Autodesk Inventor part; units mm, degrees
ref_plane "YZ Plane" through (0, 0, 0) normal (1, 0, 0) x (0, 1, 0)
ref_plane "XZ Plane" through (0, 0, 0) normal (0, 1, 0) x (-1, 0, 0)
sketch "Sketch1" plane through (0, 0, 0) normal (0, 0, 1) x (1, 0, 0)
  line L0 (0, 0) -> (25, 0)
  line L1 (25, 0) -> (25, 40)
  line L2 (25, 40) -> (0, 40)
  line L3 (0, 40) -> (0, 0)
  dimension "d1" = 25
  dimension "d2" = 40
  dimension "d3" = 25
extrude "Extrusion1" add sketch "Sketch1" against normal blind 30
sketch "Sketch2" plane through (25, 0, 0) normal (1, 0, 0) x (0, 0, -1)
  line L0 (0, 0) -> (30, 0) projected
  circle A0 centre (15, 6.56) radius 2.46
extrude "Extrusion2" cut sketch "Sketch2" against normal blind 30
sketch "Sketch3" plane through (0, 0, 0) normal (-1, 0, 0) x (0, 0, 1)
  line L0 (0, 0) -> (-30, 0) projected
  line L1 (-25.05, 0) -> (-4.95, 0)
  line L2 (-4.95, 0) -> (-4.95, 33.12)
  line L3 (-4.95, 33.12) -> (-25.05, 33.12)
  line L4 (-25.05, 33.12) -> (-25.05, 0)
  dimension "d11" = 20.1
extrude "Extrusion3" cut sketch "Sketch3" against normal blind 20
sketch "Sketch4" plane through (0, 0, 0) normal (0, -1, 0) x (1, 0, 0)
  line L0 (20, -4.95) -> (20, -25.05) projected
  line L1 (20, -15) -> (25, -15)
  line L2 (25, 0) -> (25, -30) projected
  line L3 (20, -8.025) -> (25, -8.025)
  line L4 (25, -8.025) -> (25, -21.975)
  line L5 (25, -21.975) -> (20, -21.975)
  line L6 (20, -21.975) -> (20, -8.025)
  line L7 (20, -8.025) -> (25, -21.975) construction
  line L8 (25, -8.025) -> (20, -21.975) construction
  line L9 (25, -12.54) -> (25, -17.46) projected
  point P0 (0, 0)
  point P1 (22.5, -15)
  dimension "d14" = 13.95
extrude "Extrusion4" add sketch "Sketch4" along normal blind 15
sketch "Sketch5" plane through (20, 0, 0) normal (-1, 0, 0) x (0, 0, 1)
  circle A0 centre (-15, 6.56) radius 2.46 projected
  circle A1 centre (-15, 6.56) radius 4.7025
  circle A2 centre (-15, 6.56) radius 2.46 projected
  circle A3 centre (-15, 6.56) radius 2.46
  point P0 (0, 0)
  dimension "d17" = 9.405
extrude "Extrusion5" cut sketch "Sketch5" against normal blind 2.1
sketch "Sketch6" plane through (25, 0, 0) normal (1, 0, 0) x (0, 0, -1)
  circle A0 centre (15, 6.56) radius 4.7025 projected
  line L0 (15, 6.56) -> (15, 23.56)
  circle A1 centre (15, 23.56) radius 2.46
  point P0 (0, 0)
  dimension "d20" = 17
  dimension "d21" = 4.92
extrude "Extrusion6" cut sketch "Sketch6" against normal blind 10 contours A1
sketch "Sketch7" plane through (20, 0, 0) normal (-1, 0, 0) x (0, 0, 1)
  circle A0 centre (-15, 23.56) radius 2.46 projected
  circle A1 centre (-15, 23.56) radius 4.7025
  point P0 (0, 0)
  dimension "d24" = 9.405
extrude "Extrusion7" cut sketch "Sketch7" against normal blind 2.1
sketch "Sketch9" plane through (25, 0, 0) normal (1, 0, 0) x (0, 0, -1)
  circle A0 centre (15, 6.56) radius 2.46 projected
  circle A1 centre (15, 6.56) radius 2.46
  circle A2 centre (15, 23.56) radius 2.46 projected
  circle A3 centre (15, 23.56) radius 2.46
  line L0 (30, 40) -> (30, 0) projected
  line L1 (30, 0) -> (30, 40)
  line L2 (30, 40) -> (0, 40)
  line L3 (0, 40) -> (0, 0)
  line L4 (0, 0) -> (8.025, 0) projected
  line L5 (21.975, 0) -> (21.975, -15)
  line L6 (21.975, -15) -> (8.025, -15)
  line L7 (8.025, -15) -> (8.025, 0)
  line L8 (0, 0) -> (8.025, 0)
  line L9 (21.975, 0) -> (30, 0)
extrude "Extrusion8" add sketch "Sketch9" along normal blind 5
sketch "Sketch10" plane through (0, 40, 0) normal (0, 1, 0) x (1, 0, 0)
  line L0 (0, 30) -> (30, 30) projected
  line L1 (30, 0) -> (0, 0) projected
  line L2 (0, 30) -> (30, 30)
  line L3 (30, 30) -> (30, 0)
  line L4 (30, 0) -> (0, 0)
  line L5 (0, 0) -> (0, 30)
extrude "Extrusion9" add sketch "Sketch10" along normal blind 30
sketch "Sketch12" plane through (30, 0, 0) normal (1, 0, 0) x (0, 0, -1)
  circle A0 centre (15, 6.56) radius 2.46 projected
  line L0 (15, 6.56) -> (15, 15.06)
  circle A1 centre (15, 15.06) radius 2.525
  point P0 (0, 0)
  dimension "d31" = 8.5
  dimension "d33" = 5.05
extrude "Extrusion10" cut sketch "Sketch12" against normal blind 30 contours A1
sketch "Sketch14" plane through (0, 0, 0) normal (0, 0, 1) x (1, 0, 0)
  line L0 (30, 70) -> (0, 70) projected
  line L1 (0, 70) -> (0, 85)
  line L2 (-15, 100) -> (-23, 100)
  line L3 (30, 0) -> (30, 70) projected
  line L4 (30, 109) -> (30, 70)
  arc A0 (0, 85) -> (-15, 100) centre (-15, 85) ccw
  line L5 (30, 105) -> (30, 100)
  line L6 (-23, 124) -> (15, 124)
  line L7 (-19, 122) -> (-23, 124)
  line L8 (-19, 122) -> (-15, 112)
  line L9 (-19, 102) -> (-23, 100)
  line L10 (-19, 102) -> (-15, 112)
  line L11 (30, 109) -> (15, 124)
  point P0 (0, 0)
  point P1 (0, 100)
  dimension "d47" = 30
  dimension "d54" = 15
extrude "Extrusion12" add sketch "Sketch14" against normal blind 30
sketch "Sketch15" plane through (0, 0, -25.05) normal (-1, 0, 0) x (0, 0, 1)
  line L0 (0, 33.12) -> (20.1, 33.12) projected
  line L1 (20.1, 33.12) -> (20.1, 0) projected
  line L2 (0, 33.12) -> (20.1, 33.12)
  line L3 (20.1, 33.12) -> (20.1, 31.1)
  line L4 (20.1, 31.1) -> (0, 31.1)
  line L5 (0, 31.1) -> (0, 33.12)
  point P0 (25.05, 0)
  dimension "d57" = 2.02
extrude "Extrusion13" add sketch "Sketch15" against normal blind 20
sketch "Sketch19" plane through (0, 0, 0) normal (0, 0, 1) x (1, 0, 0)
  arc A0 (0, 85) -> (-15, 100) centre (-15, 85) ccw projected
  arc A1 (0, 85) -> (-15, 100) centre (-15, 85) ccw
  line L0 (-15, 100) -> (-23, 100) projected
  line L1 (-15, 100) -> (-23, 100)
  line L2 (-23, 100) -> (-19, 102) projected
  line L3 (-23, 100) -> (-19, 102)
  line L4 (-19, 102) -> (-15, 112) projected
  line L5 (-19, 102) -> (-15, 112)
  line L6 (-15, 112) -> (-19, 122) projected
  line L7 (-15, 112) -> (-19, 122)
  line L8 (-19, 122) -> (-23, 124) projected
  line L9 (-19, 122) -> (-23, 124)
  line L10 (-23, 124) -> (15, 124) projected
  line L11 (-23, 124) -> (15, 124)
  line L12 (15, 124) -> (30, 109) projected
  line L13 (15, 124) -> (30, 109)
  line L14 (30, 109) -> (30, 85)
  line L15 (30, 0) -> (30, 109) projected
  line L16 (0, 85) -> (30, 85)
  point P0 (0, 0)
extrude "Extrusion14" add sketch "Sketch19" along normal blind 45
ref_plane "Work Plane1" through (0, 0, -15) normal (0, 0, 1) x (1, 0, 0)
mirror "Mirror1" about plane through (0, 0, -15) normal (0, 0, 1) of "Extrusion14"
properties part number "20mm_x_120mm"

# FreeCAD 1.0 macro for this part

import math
import FreeCAD as App
import Part
import Sketcher
from FreeCAD import Vector
Q = App.Units.Quantity


def add_polygon(sketch, points):
    """Adds a closed chain of lines whose ends are joined by coincident constraints."""
    first, n = sketch.GeometryCount, len(points)
    for a, b in zip(points, points[1:] + points[:1]):
        sketch.addGeometry(Part.LineSegment(App.Vector(*a, 0), App.Vector(*b, 0)), False)
    for i in range(n):
        sketch.addConstraint(Sketcher.Constraint("Coincident", first + i, 2, first + (i + 1) % n, 1))

doc = App.newDocument("Part")
body = doc.addObject("PartDesign::Body", "Body")

# Sketch on XY plane
sketch1 = doc.addObject("Sketcher::SketchObject", "Sketch")
body.addObject(sketch1)
sketch1.AttachmentSupport = (doc.XY_Plane, [""])
sketch1.MapMode = "FlatFace"
add_polygon(sketch1, [(0, 40), (0, 0), (25, 0), (25, 40)])  # lines 0-3
sketch1.addConstraint([
    Sketcher.Constraint("Vertical", 0),
    Sketcher.Constraint("Horizontal", 1),
    Sketcher.Constraint("Vertical", 2),
    Sketcher.Constraint("Horizontal", 3),
    Sketcher.Constraint("Coincident", 0, 2, -1, 1),
    Sketcher.Constraint("DistanceX", 1, 1, 1, 2, 25.0),
    Sketcher.Constraint("DistanceY", 0, 2, 0, 1, 40.0),
])
pad1 = doc.addObject("PartDesign::Pad", "Pad")
body.addObject(pad1)
pad1.Profile = sketch1
pad1.Length = 30
pad1.Reversed = True

# Sketch on YZ plane
sketch2 = doc.addObject("Sketcher::SketchObject", "Sketch001")
body.addObject(sketch2)
sketch2.AttachmentSupport = (doc.YZ_Plane, [""])
sketch2.MapMode = "FlatFace"
sketch2.AttachmentOffset = App.Placement(Vector(0, 0, 25), App.Rotation())
sketch2.addGeometry(Part.Circle(Vector(6.56, -15, 0), Vector(0, 0, 1), 2.46), False)
sketch2.addConstraint([
    Sketcher.Constraint("Diameter", 0, 4.92),
    Sketcher.Constraint("DistanceY", 0, 3, -1, 1, 15.0),
    Sketcher.Constraint("DistanceX", -1, 1, 0, 3, 6.56),
])
pocket1 = doc.addObject("PartDesign::Pocket", "Pocket")
body.addObject(pocket1)
pocket1.Profile = sketch2
pocket1.Length = 30

# Sketch on YZ plane
sketch3 = doc.addObject("Sketcher::SketchObject", "Sketch002")
body.addObject(sketch3)
sketch3.AttachmentSupport = (doc.YZ_Plane, [""])
sketch3.MapMode = "FlatFace"
add_polygon(sketch3, [(0, -25.05), (0, -4.95), (33.12, -4.95), (33.12, -25.05)])  # lines 0-3
sketch3.addConstraint([
    Sketcher.Constraint("Vertical", 0),
    Sketcher.Constraint("Horizontal", 1),
    Sketcher.Constraint("Vertical", 2),
    Sketcher.Constraint("Horizontal", 3),
    Sketcher.Constraint("PointOnObject", 0, 2, -2),
    Sketcher.Constraint("DistanceY", 0, 1, 0, 2, 20.1),
    Sketcher.Constraint("DistanceX", 1, 1, 1, 2, 33.12),
    Sketcher.Constraint("DistanceY", 0, 2, -1, 1, 4.95),
])
pocket2 = doc.addObject("PartDesign::Pocket", "Pocket001")
body.addObject(pocket2)
pocket2.Profile = sketch3
pocket2.Length = 20
pocket2.Reversed = True

# Sketch on XZ plane
sketch4 = doc.addObject("Sketcher::SketchObject", "Sketch003")
body.addObject(sketch4)
sketch4.AttachmentSupport = (doc.XZ_Plane, [""])
sketch4.MapMode = "FlatFace"
add_polygon(sketch4, [(25, -8.025), (20, -8.025), (20, -21.975), (25, -21.975)])  # lines 0-3
sketch4.addConstraint([
    Sketcher.Constraint("Horizontal", 0),
    Sketcher.Constraint("Vertical", 1),
    Sketcher.Constraint("Horizontal", 2),
    Sketcher.Constraint("Vertical", 3),
    Sketcher.Constraint("DistanceY", 1, 2, 1, 1, 13.95),
    Sketcher.Constraint("DistanceX", 0, 2, 0, 1, 5.0),
    Sketcher.Constraint("DistanceX", -1, 1, 0, 2, 20.0),
    Sketcher.Constraint("DistanceY", 0, 2, -1, 1, 8.025),
])
pad2 = doc.addObject("PartDesign::Pad", "Pad001")
body.addObject(pad2)
pad2.Profile = sketch4
pad2.Length = 15

# Sketch on YZ plane
sketch5 = doc.addObject("Sketcher::SketchObject", "Sketch004")
body.addObject(sketch5)
sketch5.AttachmentSupport = (doc.YZ_Plane, [""])
sketch5.MapMode = "FlatFace"
sketch5.AttachmentOffset = App.Placement(Vector(0, 0, 20), App.Rotation())
sketch5.addGeometry([
    Part.Circle(Vector(6.56, -15, 0), Vector(0, 0, 1), 4.7025),
    Part.Circle(Vector(6.56, -15, 0), Vector(0, 0, 1), 2.46),
], False)
sketch5.addConstraint([
    Sketcher.Constraint("Coincident", 1, 3, 0, 3),
    Sketcher.Constraint("Diameter", 0, 9.405),
    Sketcher.Constraint("Diameter", 1, 4.92),
    Sketcher.Constraint("DistanceY", 0, 3, -1, 1, 15.0),
    Sketcher.Constraint("DistanceX", -1, 1, 0, 3, 6.56),
])
pocket3 = doc.addObject("PartDesign::Pocket", "Pocket002")
body.addObject(pocket3)
pocket3.Profile = sketch5
pocket3.Length = 2.1
pocket3.Reversed = True

# Sketch on YZ plane
sketch6 = doc.addObject("Sketcher::SketchObject", "Sketch005")
body.addObject(sketch6)
sketch6.AttachmentSupport = (doc.YZ_Plane, [""])
sketch6.MapMode = "FlatFace"
sketch6.AttachmentOffset = App.Placement(Vector(0, 0, 25), App.Rotation())
sketch6.addGeometry(Part.Circle(Vector(23.56, -15, 0), Vector(0, 0, 1), 2.46), False)
sketch6.addConstraint([
    Sketcher.Constraint("Diameter", 0, 4.92),
    Sketcher.Constraint("DistanceY", 0, 3, -1, 1, 15.0),
    Sketcher.Constraint("DistanceX", -1, 1, 0, 3, 23.56),
])
pocket4 = doc.addObject("PartDesign::Pocket", "Pocket003")
body.addObject(pocket4)
pocket4.Profile = sketch6
pocket4.Length = 10

# Sketch on YZ plane
sketch7 = doc.addObject("Sketcher::SketchObject", "Sketch006")
body.addObject(sketch7)
sketch7.AttachmentSupport = (doc.YZ_Plane, [""])
sketch7.MapMode = "FlatFace"
sketch7.AttachmentOffset = App.Placement(Vector(0, 0, 20), App.Rotation())
sketch7.addGeometry([
    Part.Circle(Vector(23.56, -15, 0), Vector(0, 0, 1), 4.7025),
    Part.Circle(Vector(23.56, -15, 0), Vector(0, 0, 1), 2.46),
], False)
sketch7.addConstraint([
    Sketcher.Constraint("Coincident", 1, 3, 0, 3),
    Sketcher.Constraint("Diameter", 0, 9.405),
    Sketcher.Constraint("Diameter", 1, 4.92),
    Sketcher.Constraint("DistanceY", 0, 3, -1, 1, 15.0),
    Sketcher.Constraint("DistanceX", -1, 1, 0, 3, 23.56),
])
pocket5 = doc.addObject("PartDesign::Pocket", "Pocket004")
body.addObject(pocket5)
pocket5.Profile = sketch7
pocket5.Length = 2.1
pocket5.Reversed = True

# Sketch on YZ plane
sketch8 = doc.addObject("Sketcher::SketchObject", "Sketch007")
body.addObject(sketch8)
sketch8.AttachmentSupport = (doc.YZ_Plane, [""])
sketch8.MapMode = "FlatFace"
sketch8.AttachmentOffset = App.Placement(Vector(0, 0, 25), App.Rotation())
add_polygon(sketch8, [(0, -30), (40, -30), (40, 0), (0, 0), (0, -8.025), (-15, -8.025), (-15, -21.975), (0, -21.975)])  # lines 0-7
sketch8.addGeometry(Part.Circle(Vector(6.56, -15, 0), Vector(0, 0, 1), 2.46), False)  # 8
sketch8.addGeometry(Part.Circle(Vector(23.56, -15, 0), Vector(0, 0, 1), 2.46), False)  # 9
sketch8.addConstraint([
    Sketcher.Constraint("Horizontal", 0),
    Sketcher.Constraint("Vertical", 1),
    Sketcher.Constraint("Horizontal", 2),
    Sketcher.Constraint("Vertical", 3),
    Sketcher.Constraint("Horizontal", 4),
    Sketcher.Constraint("Vertical", 5),
    Sketcher.Constraint("Horizontal", 6),
    Sketcher.Constraint("Vertical", 7),
    Sketcher.Constraint("Coincident", 2, 2, -1, 1),
    Sketcher.Constraint("Equal", 8, 9),
    Sketcher.Constraint("PointOnObject", 6, 2, -2),
    Sketcher.Constraint("Horizontal", 8, 3, 9, 3),
    Sketcher.Constraint("Equal", 3, 7),
    Sketcher.Constraint("Diameter", 8, 4.92),
    Sketcher.Constraint("DistanceX", 0, 1, 0, 2, 40.0),
    Sketcher.Constraint("DistanceX", 4, 2, 4, 1, 15.0),
    Sketcher.Constraint("DistanceY", 1, 1, 1, 2, 30.0),
    Sketcher.Constraint("DistanceY", 8, 3, -1, 1, 15.0),
    Sketcher.Constraint("DistanceX", 8, 3, 9, 3, 17.0),
    Sketcher.Constraint("DistanceY", 5, 2, 5, 1, 13.95),
    Sketcher.Constraint("DistanceX", -1, 1, 8, 3, 6.56),
])
pad3 = doc.addObject("PartDesign::Pad", "Pad002")
body.addObject(pad3)
pad3.Profile = sketch8
pad3.Length = 5

# Sketch on XZ plane
sketch9 = doc.addObject("Sketcher::SketchObject", "Sketch008")
body.addObject(sketch9)
sketch9.AttachmentSupport = (doc.XZ_Plane, [""])
sketch9.MapMode = "FlatFace"
sketch9.AttachmentOffset = App.Placement(Vector(0, 0, -40), App.Rotation())
add_polygon(sketch9, [(30, -30), (0, -30), (0, 0), (30, 0)])  # lines 0-3
sketch9.addConstraint([
    Sketcher.Constraint("Horizontal", 0),
    Sketcher.Constraint("Vertical", 1),
    Sketcher.Constraint("Horizontal", 2),
    Sketcher.Constraint("Vertical", 3),
    Sketcher.Constraint("Coincident", 1, 2, -1, 1),
    Sketcher.Constraint("Equal", 2, 1),
    Sketcher.Constraint("DistanceX", 0, 2, 0, 1, 30.0),
])
pad4 = doc.addObject("PartDesign::Pad", "Pad003")
body.addObject(pad4)
pad4.Profile = sketch9
pad4.Length = 30
pad4.Reversed = True

# Sketch on YZ plane
sketch10 = doc.addObject("Sketcher::SketchObject", "Sketch009")
body.addObject(sketch10)
sketch10.AttachmentSupport = (doc.YZ_Plane, [""])
sketch10.MapMode = "FlatFace"
sketch10.AttachmentOffset = App.Placement(Vector(0, 0, 30), App.Rotation())
sketch10.addGeometry(Part.Circle(Vector(15.06, -15, 0), Vector(0, 0, 1), 2.525), False)
sketch10.addConstraint([
    Sketcher.Constraint("Diameter", 0, 5.05),
    Sketcher.Constraint("DistanceY", 0, 3, -1, 1, 15.0),
    Sketcher.Constraint("DistanceX", -1, 1, 0, 3, 15.06),
])
pocket6 = doc.addObject("PartDesign::Pocket", "Pocket005")
body.addObject(pocket6)
pocket6.Profile = sketch10
pocket6.Length = 30

# Sketch on XY plane
sketch11 = doc.addObject("Sketcher::SketchObject", "Sketch010")
body.addObject(sketch11)
sketch11.AttachmentSupport = (doc.XY_Plane, [""])
sketch11.MapMode = "FlatFace"
sketch11.addGeometry([
    Part.LineSegment(Vector(0, 70, 0), Vector(30, 70, 0)),  # 0
    Part.LineSegment(Vector(30, 70, 0), Vector(30, 109, 0)),  # 1
    Part.LineSegment(Vector(30, 109, 0), Vector(15, 124, 0)),  # 2
    Part.LineSegment(Vector(15, 124, 0), Vector(-23, 124, 0)),  # 3
    Part.LineSegment(Vector(-23, 124, 0), Vector(-19, 122, 0)),  # 4
    Part.LineSegment(Vector(-19, 122, 0), Vector(-15, 112, 0)),  # 5
    Part.LineSegment(Vector(-15, 112, 0), Vector(-19, 102, 0)),  # 6
    Part.LineSegment(Vector(-19, 102, 0), Vector(-23, 100, 0)),  # 7
    Part.LineSegment(Vector(-23, 100, 0), Vector(-15, 100, 0)),  # 8
    Part.ArcOfCircle(Part.Circle(Vector(-15, 85, 0), Vector(0, 0, 1), 15), math.radians(0), math.radians(90)),  # 9
    Part.LineSegment(Vector(0, 85, 0), Vector(0, 70, 0)),  # 10
], False)
sketch11.addConstraint([
    Sketcher.Constraint("Coincident", 0, 2, 1, 1),
    Sketcher.Constraint("Coincident", 1, 2, 2, 1),
    Sketcher.Constraint("Coincident", 2, 2, 3, 1),
    Sketcher.Constraint("Coincident", 3, 2, 4, 1),
    Sketcher.Constraint("Coincident", 4, 2, 5, 1),
    Sketcher.Constraint("Coincident", 5, 2, 6, 1),
    Sketcher.Constraint("Coincident", 6, 2, 7, 1),
    Sketcher.Constraint("Coincident", 7, 2, 8, 1),
    Sketcher.Constraint("Tangent", 8, 2, 9, 2),
    Sketcher.Constraint("Tangent", 9, 1, 10, 1),
    Sketcher.Constraint("Coincident", 10, 2, 0, 1),
    Sketcher.Constraint("Horizontal", 0),
    Sketcher.Constraint("Vertical", 1),
    Sketcher.Constraint("Horizontal", 3),
    Sketcher.Constraint("Horizontal", 8),
    Sketcher.Constraint("Vertical", 10),
    Sketcher.Constraint("PointOnObject", 9, 1, -2),
    Sketcher.Constraint("Vertical", 9, 3, 5, 2),
    Sketcher.Constraint("Vertical", 4, 2, 6, 2),
    Sketcher.Constraint("Vertical", 3, 2, 7, 2),
    Sketcher.Constraint("Equal", 5, 6),
    Sketcher.Constraint("Equal", 4, 7),
    Sketcher.Constraint("Radius", 9, 15.0),
    Sketcher.Constraint("DistanceX", 0, 1, 0, 2, 30.0),
    Sketcher.Constraint("DistanceY", 10, 2, 10, 1, 15.0),
    Sketcher.Constraint("DistanceX", -1, 1, 2, 2, 15.0),
    Sketcher.Constraint("DistanceY", 1, 2, 2, 2, 15.0),
    Sketcher.Constraint("DistanceX", 3, 2, 3, 1, 38.0),
    Sketcher.Constraint("DistanceY", 1, 1, 1, 2, 39.0),
    Sketcher.Constraint("DistanceY", -1, 1, 9, 3, 85.0),
    Sketcher.Constraint("DistanceX", 4, 2, -1, 1, 19.0),
    Sketcher.Constraint("DistanceY", -1, 1, 4, 2, 122.0),
])
pad5 = doc.addObject("PartDesign::Pad", "Pad004")
body.addObject(pad5)
pad5.Profile = sketch11
pad5.Length = 30
pad5.Reversed = True

# Sketch on YZ plane
sketch12 = doc.addObject("Sketcher::SketchObject", "Sketch011")
body.addObject(sketch12)
sketch12.AttachmentSupport = (doc.YZ_Plane, [""])
sketch12.MapMode = "FlatFace"
add_polygon(sketch12, [(33.12, -4.95), (33.12, -25.05), (31.1, -25.05), (31.1, -4.95)])  # lines 0-3
sketch12.addConstraint([
    Sketcher.Constraint("Vertical", 0),
    Sketcher.Constraint("Horizontal", 1),
    Sketcher.Constraint("Vertical", 2),
    Sketcher.Constraint("Horizontal", 3),
    Sketcher.Constraint("DistanceX", 1, 2, 1, 1, 2.02),
    Sketcher.Constraint("DistanceY", 0, 2, 0, 1, 20.1),
    Sketcher.Constraint("DistanceX", -1, 1, 1, 2, 31.1),
    Sketcher.Constraint("DistanceY", 0, 2, -1, 1, 25.05),
])
pad6 = doc.addObject("PartDesign::Pad", "Pad005")
body.addObject(pad6)
pad6.Profile = sketch12
pad6.Length = 20

# Sketch on XY plane
sketch13 = doc.addObject("Sketcher::SketchObject", "Sketch012")
body.addObject(sketch13)
sketch13.AttachmentSupport = (doc.XY_Plane, [""])
sketch13.MapMode = "FlatFace"
sketch13.addGeometry([
    Part.ArcOfCircle(Part.Circle(Vector(-15, 85, 0), Vector(0, 0, 1), 15), math.radians(0), math.radians(90)),  # 0
    Part.LineSegment(Vector(0, 85, 0), Vector(30, 85, 0)),  # 1
    Part.LineSegment(Vector(30, 85, 0), Vector(30, 109, 0)),  # 2
    Part.LineSegment(Vector(30, 109, 0), Vector(15, 124, 0)),  # 3
    Part.LineSegment(Vector(15, 124, 0), Vector(-23, 124, 0)),  # 4
    Part.LineSegment(Vector(-23, 124, 0), Vector(-19, 122, 0)),  # 5
    Part.LineSegment(Vector(-19, 122, 0), Vector(-15, 112, 0)),  # 6
    Part.LineSegment(Vector(-15, 112, 0), Vector(-19, 102, 0)),  # 7
    Part.LineSegment(Vector(-19, 102, 0), Vector(-23, 100, 0)),  # 8
    Part.LineSegment(Vector(-23, 100, 0), Vector(-15, 100, 0)),  # 9
], False)
sketch13.addConstraint([
    Sketcher.Constraint("Coincident", 0, 1, 1, 1),
    Sketcher.Constraint("Coincident", 1, 2, 2, 1),
    Sketcher.Constraint("Coincident", 2, 2, 3, 1),
    Sketcher.Constraint("Coincident", 3, 2, 4, 1),
    Sketcher.Constraint("Coincident", 4, 2, 5, 1),
    Sketcher.Constraint("Coincident", 5, 2, 6, 1),
    Sketcher.Constraint("Coincident", 6, 2, 7, 1),
    Sketcher.Constraint("Coincident", 7, 2, 8, 1),
    Sketcher.Constraint("Coincident", 8, 2, 9, 1),
    Sketcher.Constraint("Tangent", 9, 2, 0, 2),
    Sketcher.Constraint("Horizontal", 1),
    Sketcher.Constraint("Vertical", 2),
    Sketcher.Constraint("Horizontal", 4),
    Sketcher.Constraint("Horizontal", 9),
    Sketcher.Constraint("PointOnObject", 0, 1, -2),
    Sketcher.Constraint("Vertical", 0, 3, 6, 2),
    Sketcher.Constraint("Vertical", 5, 2, 7, 2),
    Sketcher.Constraint("Vertical", 4, 2, 8, 2),
    Sketcher.Constraint("Equal", 6, 7),
    Sketcher.Constraint("Equal", 5, 8),
    Sketcher.Constraint("Radius", 0, 15.0),
    Sketcher.Constraint("DistanceX", 1, 1, 1, 2, 30.0),
    Sketcher.Constraint("DistanceX", 4, 2, 4, 1, 38.0),
    Sketcher.Constraint("DistanceX", 9, 1, 9, 2, 8.0),
    Sketcher.Constraint("DistanceY", 2, 1, 2, 2, 24.0),
    Sketcher.Constraint("Angle", 3, Q("135 deg")),
    Sketcher.Constraint("DistanceY", -1, 1, 0, 3, 85.0),
    Sketcher.Constraint("DistanceY", -1, 1, 0, 1, 85.0),
    Sketcher.Constraint("DistanceX", 5, 2, -1, 1, 19.0),
    Sketcher.Constraint("DistanceY", -1, 1, 5, 2, 122.0),
])
pad7 = doc.addObject("PartDesign::Pad", "Pad006")
body.addObject(pad7)
pad7.Profile = sketch13
pad7.Length = 45
doc.recompute()

datumplane = doc.addObject("PartDesign::Plane", "DatumPlane")
body.addObject(datumplane)
datumplane.AttachmentSupport = (doc.XY_Plane, [""])
datumplane.MapMode = "FlatFace"
datumplane.AttachmentOffset = App.Placement(Vector(0, 0, -15), App.Rotation())
mirrored = doc.addObject("PartDesign::Mirrored", "Mirrored")
body.addObject(mirrored)
mirrored.Originals = [pad7]
mirrored.MirrorPlane = (datumplane, [""])
body.Tip = mirrored

doc.recompute()
